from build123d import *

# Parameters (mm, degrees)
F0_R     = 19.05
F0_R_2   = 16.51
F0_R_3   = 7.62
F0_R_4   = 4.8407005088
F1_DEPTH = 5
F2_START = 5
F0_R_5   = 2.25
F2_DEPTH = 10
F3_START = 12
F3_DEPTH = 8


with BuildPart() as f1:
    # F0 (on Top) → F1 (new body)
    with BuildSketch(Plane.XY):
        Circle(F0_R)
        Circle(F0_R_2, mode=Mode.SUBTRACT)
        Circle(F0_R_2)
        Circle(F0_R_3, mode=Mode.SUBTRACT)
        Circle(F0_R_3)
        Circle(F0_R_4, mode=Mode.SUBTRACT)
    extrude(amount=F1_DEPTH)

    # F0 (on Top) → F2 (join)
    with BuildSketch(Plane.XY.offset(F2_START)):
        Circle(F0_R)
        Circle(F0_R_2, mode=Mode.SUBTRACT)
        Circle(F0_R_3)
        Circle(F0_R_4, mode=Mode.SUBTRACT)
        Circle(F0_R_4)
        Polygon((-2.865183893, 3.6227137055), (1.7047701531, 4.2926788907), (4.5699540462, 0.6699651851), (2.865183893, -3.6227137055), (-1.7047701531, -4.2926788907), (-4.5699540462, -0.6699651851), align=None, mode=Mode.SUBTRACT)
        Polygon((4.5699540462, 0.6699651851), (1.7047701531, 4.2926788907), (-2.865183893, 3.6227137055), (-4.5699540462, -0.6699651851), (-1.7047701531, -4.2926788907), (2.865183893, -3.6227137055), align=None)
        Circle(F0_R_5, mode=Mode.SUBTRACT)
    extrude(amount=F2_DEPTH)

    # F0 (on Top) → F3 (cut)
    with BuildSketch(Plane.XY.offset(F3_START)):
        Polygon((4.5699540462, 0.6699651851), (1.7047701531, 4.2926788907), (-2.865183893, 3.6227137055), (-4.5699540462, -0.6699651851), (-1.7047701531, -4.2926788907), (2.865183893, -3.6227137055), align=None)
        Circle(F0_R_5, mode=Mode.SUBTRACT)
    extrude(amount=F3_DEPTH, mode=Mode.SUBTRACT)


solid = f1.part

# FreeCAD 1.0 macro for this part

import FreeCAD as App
import Part
import Sketcher
from FreeCAD import Vector
Q = App.Units.Quantity


def add_polygon(sketch, points):
    """Adds a closed chain of lines whose ends are joined by coincident constraints."""
    first, n = sketch.GeometryCount, len(points)
    for a, b in zip(points, points[1:] + points[:1]):
        sketch.addGeometry(Part.LineSegment(App.Vector(*a, 0), App.Vector(*b, 0)), False)
    for i in range(n):
        sketch.addConstraint(Sketcher.Constraint("Coincident", first + i, 2, first + (i + 1) % n, 1))

doc = App.newDocument("Part")
params = doc.addObject("Spreadsheet::Sheet", "Params")
for row, (alias, value) in enumerate([
    ("sketch1_diameter", "38.1 mm"),
    ("pad1_length", "5 mm"),
    ("sketch2_diameter", "38.1 mm"),
    ("sketch2_diameter2", "4.5 mm"),
    ("sketch2_diameter3", "33.02 mm"),
    ("sketch2_diameter4", "15.24 mm"),
    ("pad2_length", "10 mm"),
    ("sketch3_diameter", "4.5 mm"),
    ("pocket1_length", "8 mm"),
], start=1):
    params.set(f"A{row}", alias)
    params.set(f"B{row}", "=" + value)
    params.setAlias(f"B{row}", alias)

body = doc.addObject("PartDesign::Body", "Body")

# Sketch on XY plane
sketch1 = doc.addObject("Sketcher::SketchObject", "Sketch")
body.addObject(sketch1)
sketch1.AttachmentSupport = (doc.XY_Plane, [""])
sketch1.MapMode = "FlatFace"
sketch1.addGeometry(Part.Circle(Vector(0, 0, 0), Vector(0, 0, 1), 19.1), False)
sketch1.addGeometry(Part.Circle(Vector(0, 0, 0), Vector(0, 0, 1), 4.8), False)
sketch1.addConstraint(Sketcher.Constraint("Coincident", 0, 3, -1, 1))
sketch1.addConstraint(Sketcher.Constraint("Coincident", 1, 3, -1, 1))
sketch1.addConstraint(Sketcher.Constraint("Diameter", 0, Q("38.1 mm")))
sketch1.addConstraint(Sketcher.Constraint("Diameter", 1, Q("9.681401 mm")))
sketch1.setExpression("Constraints[2]", "Params.sketch1_diameter")
pad1 = doc.addObject("PartDesign::Pad", "Pad")
body.addObject(pad1)
pad1.Profile = sketch1
pad1.setExpression("Length", "Params.pad1_length")

# Sketch on XY plane
sketch2 = doc.addObject("Sketcher::SketchObject", "Sketch001")
body.addObject(sketch2)
sketch2.AttachmentSupport = (doc.XY_Plane, [""])
sketch2.MapMode = "FlatFace"
sketch2.AttachmentOffset = App.Placement(Vector(0, 0, 5), App.Rotation())
sketch2.addGeometry(Part.Circle(Vector(0, 0, 0), Vector(0, 0, 1), 19.1), False)
sketch2.addGeometry(Part.Circle(Vector(0, 0, 0), Vector(0, 0, 1), 16.5), False)
sketch2.addGeometry(Part.Circle(Vector(0, 0, 0), Vector(0, 0, 1), 7.6), False)
sketch2.addGeometry(Part.Circle(Vector(0, 0, 0), Vector(0, 0, 1), 2.2), False)
sketch2.addConstraint(Sketcher.Constraint("Coincident", 0, 3, -1, 1))
sketch2.addConstraint(Sketcher.Constraint("Coincident", 1, 3, -1, 1))
sketch2.addConstraint(Sketcher.Constraint("Coincident", 2, 3, -1, 1))
sketch2.addConstraint(Sketcher.Constraint("Coincident", 3, 3, -1, 1))
sketch2.addConstraint(Sketcher.Constraint("Diameter", 0, Q("38.1 mm")))
sketch2.addConstraint(Sketcher.Constraint("Diameter", 3, Q("4.5 mm")))
sketch2.addConstraint(Sketcher.Constraint("Diameter", 1, Q("33.02 mm")))
sketch2.addConstraint(Sketcher.Constraint("Diameter", 2, Q("15.24 mm")))
sketch2.setExpression("Constraints[4]", "Params.sketch2_diameter")
sketch2.setExpression("Constraints[5]", "Params.sketch2_diameter2")
sketch2.setExpression("Constraints[6]", "Params.sketch2_diameter3")
sketch2.setExpression("Constraints[7]", "Params.sketch2_diameter4")
pad2 = doc.addObject("PartDesign::Pad", "Pad001")
body.addObject(pad2)
pad2.Profile = sketch2
pad2.setExpression("Length", "Params.pad2_length")

# Sketch on XY plane
sketch3 = doc.addObject("Sketcher::SketchObject", "Sketch002")
body.addObject(sketch3)
sketch3.AttachmentSupport = (doc.XY_Plane, [""])
sketch3.MapMode = "FlatFace"
sketch3.AttachmentOffset = App.Placement(Vector(0, 0, 12), App.Rotation())
add_polygon(sketch3, [(4.6, 0.7), (1.7, 4.3), (-2.9, 3.6), (-4.6, -0.7), (-1.7, -4.3), (2.9, -3.6)])  # lines 0-5
sketch3.addGeometry(Part.Circle(Vector(0, 0, 0), Vector(0, 0, 1), 2.2), False)  # 6
sketch3.addConstraint(Sketcher.Constraint("Coincident", 6, 3, -1, 1))
sketch3.addConstraint(Sketcher.Constraint("Symmetric", 0, 2, 3, 2, -1, 1))
sketch3.addConstraint(Sketcher.Constraint("Symmetric", 1, 2, 4, 2, -1, 1))
sketch3.addConstraint(Sketcher.Constraint("Symmetric", 2, 2, 5, 2, -1, 1))
sketch3.addConstraint(Sketcher.Constraint("Equal", 0, 1))
sketch3.addConstraint(Sketcher.Constraint("Equal", 1, 2))
sketch3.addConstraint(Sketcher.Constraint("Diameter", 6, Q("4.5 mm")))
sketch3.addConstraint(Sketcher.Constraint("DistanceX", -1, 1, 0, 2, Q("1.70477 mm")))
sketch3.addConstraint(Sketcher.Constraint("DistanceY", -1, 1, 0, 2, Q("4.292679 mm")))
sketch3.addConstraint(Sketcher.Constraint("DistanceX", 2, 2, 1, 2, Q("1.70477 mm")))
sketch3.addConstraint(Sketcher.Constraint("DistanceY", 2, 2, 1, 2, Q("4.292679 mm")))
sketch3.setExpression("Constraints[12]", "Params.sketch3_diameter")
pocket1 = doc.addObject("PartDesign::Pocket", "Pocket")
body.addObject(pocket1)
pocket1.Profile = sketch3
pocket1.setExpression("Length", "Params.pocket1_length")
pocket1.Reversed = True

doc.recompute()
